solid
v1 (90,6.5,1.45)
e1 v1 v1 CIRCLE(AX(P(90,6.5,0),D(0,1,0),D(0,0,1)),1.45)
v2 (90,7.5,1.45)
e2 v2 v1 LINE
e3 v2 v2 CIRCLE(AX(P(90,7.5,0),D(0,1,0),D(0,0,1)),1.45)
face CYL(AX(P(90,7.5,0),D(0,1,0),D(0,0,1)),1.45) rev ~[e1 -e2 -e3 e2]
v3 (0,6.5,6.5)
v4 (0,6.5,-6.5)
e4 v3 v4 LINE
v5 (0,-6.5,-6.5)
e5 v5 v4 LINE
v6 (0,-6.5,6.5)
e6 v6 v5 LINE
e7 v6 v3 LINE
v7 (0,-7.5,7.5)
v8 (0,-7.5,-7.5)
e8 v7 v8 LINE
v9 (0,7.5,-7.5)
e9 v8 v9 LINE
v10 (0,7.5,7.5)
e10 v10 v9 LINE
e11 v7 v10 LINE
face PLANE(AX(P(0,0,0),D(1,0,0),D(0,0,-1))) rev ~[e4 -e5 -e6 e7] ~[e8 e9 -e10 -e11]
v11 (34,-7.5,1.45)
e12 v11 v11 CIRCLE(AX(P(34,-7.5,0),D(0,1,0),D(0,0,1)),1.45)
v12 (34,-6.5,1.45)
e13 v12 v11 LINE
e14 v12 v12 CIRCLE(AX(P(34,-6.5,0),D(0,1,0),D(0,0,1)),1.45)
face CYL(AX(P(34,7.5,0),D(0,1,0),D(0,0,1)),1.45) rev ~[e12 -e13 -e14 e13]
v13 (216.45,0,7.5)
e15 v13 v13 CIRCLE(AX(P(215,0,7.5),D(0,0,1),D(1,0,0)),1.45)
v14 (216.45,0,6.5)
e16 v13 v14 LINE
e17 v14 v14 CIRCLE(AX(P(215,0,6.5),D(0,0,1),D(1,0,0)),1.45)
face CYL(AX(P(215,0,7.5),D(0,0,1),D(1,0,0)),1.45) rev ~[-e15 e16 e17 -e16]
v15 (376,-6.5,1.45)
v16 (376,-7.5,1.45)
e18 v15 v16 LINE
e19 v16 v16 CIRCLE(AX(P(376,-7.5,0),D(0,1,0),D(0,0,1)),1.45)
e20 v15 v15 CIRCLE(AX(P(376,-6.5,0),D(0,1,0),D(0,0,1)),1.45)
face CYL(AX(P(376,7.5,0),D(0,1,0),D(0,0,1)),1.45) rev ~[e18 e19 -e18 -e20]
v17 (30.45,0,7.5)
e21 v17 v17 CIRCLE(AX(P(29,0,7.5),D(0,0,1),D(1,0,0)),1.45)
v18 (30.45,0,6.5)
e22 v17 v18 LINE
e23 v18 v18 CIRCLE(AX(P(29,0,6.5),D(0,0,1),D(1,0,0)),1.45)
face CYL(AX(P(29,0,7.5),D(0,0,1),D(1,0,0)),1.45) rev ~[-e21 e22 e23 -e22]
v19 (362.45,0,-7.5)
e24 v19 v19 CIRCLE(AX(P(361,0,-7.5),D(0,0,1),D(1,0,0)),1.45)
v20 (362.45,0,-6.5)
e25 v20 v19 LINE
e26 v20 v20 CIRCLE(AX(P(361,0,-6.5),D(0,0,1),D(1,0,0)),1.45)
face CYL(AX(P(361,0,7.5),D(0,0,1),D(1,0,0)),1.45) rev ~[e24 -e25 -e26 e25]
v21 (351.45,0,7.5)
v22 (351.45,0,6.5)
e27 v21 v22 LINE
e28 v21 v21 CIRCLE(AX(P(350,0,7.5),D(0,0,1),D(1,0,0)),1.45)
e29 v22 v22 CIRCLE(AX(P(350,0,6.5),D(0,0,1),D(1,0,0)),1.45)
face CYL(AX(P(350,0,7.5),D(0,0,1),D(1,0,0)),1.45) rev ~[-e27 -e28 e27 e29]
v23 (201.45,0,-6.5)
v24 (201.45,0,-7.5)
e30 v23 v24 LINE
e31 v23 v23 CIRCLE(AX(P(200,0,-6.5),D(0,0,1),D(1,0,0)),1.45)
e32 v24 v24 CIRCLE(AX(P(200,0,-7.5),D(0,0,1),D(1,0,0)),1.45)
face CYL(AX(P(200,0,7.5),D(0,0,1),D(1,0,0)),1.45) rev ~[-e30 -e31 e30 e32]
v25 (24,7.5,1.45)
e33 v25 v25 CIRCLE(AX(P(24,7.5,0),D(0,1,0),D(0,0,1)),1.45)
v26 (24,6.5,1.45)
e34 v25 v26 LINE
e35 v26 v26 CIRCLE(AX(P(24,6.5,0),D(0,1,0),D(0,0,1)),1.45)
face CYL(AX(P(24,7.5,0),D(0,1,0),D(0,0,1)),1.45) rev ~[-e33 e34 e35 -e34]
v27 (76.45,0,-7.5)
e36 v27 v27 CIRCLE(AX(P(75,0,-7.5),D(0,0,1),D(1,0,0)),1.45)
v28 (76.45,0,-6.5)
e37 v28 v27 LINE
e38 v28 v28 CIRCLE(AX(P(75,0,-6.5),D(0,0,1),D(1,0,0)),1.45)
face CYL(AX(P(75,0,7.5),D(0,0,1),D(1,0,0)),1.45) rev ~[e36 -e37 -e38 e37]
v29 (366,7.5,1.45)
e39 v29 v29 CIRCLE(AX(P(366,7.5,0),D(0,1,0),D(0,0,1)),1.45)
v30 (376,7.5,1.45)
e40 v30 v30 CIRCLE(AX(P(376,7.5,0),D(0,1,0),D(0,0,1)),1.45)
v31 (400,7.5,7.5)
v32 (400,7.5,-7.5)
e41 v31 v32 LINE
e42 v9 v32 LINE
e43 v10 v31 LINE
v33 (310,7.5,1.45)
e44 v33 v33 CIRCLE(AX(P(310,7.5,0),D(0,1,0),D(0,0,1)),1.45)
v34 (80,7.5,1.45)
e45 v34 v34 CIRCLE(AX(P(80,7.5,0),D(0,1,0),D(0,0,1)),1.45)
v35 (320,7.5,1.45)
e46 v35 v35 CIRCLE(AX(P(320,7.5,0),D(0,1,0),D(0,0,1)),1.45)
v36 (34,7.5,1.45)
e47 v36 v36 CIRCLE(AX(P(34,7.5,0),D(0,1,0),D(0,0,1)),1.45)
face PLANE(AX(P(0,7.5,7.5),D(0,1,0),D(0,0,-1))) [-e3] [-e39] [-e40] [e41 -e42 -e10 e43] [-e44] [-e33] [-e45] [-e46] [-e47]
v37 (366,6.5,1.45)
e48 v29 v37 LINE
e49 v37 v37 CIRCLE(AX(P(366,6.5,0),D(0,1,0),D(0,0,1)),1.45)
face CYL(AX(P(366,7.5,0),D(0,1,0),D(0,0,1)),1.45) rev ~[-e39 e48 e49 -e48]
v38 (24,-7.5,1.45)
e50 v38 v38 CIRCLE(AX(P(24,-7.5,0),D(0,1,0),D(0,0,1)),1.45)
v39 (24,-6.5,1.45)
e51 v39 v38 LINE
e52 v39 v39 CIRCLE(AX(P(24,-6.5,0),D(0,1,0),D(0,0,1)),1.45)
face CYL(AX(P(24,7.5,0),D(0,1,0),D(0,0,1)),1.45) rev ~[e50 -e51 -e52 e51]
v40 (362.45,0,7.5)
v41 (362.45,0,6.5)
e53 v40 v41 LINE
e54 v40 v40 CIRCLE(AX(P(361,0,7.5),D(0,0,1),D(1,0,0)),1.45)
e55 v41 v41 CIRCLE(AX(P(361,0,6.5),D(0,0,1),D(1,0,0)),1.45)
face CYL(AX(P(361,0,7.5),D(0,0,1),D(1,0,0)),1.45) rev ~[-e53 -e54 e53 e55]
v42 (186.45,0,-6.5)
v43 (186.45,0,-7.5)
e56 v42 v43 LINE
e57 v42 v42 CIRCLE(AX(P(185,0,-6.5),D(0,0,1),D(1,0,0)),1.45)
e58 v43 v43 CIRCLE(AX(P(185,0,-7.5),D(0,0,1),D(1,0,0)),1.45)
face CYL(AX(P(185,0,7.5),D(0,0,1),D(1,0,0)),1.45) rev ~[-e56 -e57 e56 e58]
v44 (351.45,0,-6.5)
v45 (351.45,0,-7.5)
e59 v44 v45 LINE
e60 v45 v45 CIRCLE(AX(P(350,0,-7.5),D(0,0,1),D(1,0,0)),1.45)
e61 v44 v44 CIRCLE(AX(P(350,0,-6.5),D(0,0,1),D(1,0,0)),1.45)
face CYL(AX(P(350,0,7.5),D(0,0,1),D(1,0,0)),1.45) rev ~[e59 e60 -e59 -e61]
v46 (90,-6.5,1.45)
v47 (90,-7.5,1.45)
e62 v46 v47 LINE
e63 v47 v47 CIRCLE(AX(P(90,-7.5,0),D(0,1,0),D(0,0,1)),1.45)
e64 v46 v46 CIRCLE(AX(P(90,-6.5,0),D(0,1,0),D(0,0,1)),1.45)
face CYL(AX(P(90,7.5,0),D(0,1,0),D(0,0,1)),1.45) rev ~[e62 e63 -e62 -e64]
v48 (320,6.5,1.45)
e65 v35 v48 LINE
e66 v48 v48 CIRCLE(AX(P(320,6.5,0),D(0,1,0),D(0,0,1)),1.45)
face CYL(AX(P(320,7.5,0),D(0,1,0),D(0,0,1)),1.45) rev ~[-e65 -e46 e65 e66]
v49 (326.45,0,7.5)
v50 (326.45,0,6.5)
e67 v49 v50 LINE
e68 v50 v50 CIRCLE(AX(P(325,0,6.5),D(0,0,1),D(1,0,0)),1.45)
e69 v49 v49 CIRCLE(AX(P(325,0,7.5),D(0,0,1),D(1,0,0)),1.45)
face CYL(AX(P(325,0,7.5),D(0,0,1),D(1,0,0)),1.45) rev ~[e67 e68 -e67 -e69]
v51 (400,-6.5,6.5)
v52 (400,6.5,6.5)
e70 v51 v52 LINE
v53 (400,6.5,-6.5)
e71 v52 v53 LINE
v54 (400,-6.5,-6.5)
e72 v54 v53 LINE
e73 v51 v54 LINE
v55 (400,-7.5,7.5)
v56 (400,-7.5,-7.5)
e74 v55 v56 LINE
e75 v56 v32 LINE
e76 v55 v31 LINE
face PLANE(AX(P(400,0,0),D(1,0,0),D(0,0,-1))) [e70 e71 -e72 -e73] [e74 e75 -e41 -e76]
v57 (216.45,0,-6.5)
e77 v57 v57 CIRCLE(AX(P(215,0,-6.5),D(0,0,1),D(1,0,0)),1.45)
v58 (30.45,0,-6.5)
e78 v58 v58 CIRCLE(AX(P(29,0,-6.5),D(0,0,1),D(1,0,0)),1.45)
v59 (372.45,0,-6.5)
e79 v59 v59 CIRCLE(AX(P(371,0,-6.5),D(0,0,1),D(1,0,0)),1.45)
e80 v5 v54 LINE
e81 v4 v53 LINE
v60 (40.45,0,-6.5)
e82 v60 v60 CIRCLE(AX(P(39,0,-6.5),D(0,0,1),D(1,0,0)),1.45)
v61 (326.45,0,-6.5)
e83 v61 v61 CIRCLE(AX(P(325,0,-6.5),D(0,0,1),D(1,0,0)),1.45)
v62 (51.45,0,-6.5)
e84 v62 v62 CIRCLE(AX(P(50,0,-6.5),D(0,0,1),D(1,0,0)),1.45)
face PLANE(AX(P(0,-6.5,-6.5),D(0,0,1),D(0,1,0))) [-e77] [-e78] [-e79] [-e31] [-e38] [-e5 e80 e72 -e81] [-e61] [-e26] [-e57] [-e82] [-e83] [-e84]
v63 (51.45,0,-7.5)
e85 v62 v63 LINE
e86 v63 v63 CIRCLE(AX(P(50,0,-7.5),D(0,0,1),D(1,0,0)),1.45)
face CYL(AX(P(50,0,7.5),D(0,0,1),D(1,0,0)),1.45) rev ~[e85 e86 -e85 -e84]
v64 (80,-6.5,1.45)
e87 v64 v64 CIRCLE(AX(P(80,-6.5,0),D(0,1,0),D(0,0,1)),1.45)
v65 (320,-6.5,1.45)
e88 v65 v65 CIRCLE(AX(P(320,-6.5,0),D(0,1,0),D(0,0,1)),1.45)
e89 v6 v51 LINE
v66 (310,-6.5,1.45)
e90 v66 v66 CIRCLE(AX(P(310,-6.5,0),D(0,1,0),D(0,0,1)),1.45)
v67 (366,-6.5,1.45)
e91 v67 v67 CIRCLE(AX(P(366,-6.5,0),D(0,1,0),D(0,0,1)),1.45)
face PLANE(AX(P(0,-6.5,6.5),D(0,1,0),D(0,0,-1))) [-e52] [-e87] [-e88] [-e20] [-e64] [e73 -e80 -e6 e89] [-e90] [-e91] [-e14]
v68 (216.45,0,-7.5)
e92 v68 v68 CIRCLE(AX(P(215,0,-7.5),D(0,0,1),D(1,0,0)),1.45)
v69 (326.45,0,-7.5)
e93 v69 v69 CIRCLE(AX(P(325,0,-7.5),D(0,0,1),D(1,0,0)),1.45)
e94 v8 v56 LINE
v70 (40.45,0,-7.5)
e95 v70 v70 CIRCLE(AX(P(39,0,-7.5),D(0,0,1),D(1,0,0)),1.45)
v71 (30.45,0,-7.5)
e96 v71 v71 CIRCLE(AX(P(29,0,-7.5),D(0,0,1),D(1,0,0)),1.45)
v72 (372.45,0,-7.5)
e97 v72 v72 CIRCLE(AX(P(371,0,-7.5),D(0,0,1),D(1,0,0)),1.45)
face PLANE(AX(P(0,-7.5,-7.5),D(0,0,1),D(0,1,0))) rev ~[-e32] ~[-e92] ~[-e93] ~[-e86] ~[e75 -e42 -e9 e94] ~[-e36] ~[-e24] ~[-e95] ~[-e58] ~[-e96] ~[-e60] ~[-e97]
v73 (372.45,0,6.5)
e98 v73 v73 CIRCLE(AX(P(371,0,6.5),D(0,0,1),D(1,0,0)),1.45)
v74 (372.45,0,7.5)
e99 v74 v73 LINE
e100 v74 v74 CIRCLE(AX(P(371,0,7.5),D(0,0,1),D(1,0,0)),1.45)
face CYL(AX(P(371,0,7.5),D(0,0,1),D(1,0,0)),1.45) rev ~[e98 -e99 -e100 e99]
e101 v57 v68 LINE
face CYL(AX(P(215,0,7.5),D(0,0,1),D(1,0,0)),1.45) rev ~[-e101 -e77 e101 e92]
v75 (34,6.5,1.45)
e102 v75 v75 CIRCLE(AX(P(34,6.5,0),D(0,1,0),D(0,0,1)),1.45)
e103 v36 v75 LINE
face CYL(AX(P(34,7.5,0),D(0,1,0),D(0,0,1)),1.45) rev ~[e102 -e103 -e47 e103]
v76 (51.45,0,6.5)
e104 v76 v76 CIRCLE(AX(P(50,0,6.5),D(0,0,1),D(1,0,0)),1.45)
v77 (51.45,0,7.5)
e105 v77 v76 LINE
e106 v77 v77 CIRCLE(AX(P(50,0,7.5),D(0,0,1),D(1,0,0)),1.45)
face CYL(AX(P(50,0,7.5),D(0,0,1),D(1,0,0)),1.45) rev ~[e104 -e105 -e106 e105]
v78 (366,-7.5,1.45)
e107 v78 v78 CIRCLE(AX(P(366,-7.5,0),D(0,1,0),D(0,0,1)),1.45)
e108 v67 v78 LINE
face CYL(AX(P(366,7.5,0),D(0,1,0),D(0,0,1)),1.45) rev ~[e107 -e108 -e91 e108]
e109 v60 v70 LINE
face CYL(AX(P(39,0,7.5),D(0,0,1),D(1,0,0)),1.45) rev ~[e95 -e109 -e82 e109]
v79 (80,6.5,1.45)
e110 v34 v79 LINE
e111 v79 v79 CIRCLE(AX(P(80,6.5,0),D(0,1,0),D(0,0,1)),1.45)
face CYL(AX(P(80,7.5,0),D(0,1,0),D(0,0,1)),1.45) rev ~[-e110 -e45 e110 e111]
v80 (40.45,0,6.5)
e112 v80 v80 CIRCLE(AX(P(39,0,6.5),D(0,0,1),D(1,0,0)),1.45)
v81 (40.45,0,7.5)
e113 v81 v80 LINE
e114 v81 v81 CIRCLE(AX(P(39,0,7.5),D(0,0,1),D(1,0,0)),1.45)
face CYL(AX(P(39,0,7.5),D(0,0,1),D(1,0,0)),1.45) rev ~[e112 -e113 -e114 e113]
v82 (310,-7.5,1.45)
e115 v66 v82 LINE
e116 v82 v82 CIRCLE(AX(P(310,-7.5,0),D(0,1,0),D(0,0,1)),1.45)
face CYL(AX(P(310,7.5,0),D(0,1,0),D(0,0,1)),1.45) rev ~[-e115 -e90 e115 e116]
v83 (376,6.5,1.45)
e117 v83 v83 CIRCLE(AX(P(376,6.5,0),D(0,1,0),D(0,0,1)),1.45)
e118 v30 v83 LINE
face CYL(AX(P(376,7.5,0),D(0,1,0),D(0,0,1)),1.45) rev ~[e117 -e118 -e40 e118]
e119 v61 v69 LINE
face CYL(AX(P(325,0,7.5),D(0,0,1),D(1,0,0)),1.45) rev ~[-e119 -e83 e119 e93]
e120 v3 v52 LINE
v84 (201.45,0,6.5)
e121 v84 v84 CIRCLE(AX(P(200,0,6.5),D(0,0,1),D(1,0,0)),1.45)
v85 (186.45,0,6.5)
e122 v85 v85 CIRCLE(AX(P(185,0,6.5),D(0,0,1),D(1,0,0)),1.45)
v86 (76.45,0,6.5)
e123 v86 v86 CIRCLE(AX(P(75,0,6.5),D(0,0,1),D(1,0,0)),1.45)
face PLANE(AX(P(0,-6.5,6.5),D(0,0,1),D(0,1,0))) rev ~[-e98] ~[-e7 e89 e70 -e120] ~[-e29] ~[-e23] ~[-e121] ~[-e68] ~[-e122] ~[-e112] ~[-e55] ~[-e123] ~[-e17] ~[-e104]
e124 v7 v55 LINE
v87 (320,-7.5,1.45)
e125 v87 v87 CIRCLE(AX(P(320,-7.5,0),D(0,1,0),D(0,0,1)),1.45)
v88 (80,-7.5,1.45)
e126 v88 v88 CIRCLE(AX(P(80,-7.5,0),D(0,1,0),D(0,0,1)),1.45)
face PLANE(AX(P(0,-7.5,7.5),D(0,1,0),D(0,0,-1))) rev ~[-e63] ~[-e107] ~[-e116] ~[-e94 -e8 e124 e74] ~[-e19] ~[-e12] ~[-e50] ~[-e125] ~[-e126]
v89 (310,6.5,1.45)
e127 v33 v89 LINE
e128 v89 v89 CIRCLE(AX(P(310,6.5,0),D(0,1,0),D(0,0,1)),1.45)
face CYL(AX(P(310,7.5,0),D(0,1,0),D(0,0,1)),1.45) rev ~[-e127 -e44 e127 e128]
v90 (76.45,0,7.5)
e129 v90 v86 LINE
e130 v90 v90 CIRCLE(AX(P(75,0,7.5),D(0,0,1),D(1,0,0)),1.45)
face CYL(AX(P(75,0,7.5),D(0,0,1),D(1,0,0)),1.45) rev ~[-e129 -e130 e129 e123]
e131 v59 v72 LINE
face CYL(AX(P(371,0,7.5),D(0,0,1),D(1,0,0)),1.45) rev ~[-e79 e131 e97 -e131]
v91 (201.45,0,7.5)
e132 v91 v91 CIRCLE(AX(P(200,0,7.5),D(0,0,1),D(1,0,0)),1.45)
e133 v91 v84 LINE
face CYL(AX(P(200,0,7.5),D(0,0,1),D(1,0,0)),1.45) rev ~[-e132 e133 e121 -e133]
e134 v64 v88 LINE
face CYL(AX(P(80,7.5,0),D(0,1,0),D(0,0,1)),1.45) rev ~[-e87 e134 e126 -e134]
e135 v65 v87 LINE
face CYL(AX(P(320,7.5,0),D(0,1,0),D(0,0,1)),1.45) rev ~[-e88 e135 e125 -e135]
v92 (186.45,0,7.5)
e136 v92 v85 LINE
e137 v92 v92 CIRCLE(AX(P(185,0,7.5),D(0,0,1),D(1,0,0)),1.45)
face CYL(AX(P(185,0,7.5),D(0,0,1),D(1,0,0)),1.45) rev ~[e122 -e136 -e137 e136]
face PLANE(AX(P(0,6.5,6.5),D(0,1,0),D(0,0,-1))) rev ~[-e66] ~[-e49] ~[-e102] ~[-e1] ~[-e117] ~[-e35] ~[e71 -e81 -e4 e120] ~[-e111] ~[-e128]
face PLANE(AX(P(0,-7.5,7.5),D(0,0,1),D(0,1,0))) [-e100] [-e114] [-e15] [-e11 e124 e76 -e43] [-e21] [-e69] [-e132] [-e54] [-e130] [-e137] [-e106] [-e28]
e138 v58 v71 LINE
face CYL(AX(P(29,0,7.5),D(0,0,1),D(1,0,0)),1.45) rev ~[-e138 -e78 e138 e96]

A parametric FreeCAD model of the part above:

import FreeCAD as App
import Part
import Sketcher

V = App.Vector
Q = App.Units.Quantity

doc = App.newDocument("Part")
params = doc.addObject("Spreadsheet::Sheet", "Params")
for row, (alias, value) in enumerate([
    ("sketch1_width", "15 mm"),
    ("sketch1_width2", "13 mm"),
    ("pad1_length", "400 mm"),
    ("sketch2_diameter", "2.9 mm"),
    ("sketch3_diameter", "2.9 mm"),
], start=1):
    params.set(f"A{row}", alias)
    params.set(f"B{row}", "=" + value)
    params.setAlias(f"B{row}", alias)

body = doc.addObject("PartDesign::Body", "Body")

sketch1 = doc.addObject("Sketcher::SketchObject", "Sketch")
body.addObject(sketch1)
sketch1.AttachmentSupport = (doc.YZ_Plane, [""])
sketch1.MapMode = "FlatFace"
sketch1.addGeometry(Part.LineSegment(V(8, 8, 0), V(-8, 8, 0)), False)
sketch1.addGeometry(Part.LineSegment(V(-8, 8, 0), V(-8, -8, 0)), False)
sketch1.addGeometry(Part.LineSegment(V(-8, -8, 0), V(8, -8, 0)), False)
sketch1.addGeometry(Part.LineSegment(V(8, -8, 0), V(8, 8, 0)), False)
sketch1.addGeometry(Part.LineSegment(V(-6, -6, 0), V(-6, 6, 0)), False)
sketch1.addGeometry(Part.LineSegment(V(-6, 6, 0), V(6, 6, 0)), False)
sketch1.addGeometry(Part.LineSegment(V(6, 6, 0), V(6, -6, 0)), False)
sketch1.addGeometry(Part.LineSegment(V(6, -6, 0), V(-6, -6, 0)), False)
sketch1.addConstraint(Sketcher.Constraint("Coincident", 0, 2, 1, 1))
sketch1.addConstraint(Sketcher.Constraint("Coincident", 1, 2, 2, 1))
sketch1.addConstraint(Sketcher.Constraint("Coincident", 2, 2, 3, 1))
sketch1.addConstraint(Sketcher.Constraint("Coincident", 3, 2, 0, 1))
sketch1.addConstraint(Sketcher.Constraint("Coincident", 4, 2, 5, 1))
sketch1.addConstraint(Sketcher.Constraint("Coincident", 5, 2, 6, 1))
sketch1.addConstraint(Sketcher.Constraint("Coincident", 6, 2, 7, 1))
sketch1.addConstraint(Sketcher.Constraint("Coincident", 7, 2, 4, 1))
sketch1.addConstraint(Sketcher.Constraint("Horizontal", 0))
sketch1.addConstraint(Sketcher.Constraint("Vertical", 1))
sketch1.addConstraint(Sketcher.Constraint("Horizontal", 2))
sketch1.addConstraint(Sketcher.Constraint("Vertical", 3))
sketch1.addConstraint(Sketcher.Constraint("Vertical", 4))
sketch1.addConstraint(Sketcher.Constraint("Horizontal", 5))
sketch1.addConstraint(Sketcher.Constraint("Vertical", 6))
sketch1.addConstraint(Sketcher.Constraint("Horizontal", 7))
sketch1.addConstraint(Sketcher.Constraint("Symmetric", 0, 2, 2, 2, -1, 1))
sketch1.addConstraint(Sketcher.Constraint("Symmetric", 4, 2, 6, 2, -1, 1))
sketch1.addConstraint(Sketcher.Constraint("Equal", 2, 1))
sketch1.addConstraint(Sketcher.Constraint("Equal", 7, 4))
sketch1.addConstraint(Sketcher.Constraint("DistanceX", 0, 2, 0, 1, Q("15 mm")))
sketch1.addConstraint(Sketcher.Constraint("DistanceX", 5, 1, 5, 2, Q("13 mm")))
sketch1.setExpression("Constraints[20]", "Params.sketch1_width")
sketch1.setExpression("Constraints[21]", "Params.sketch1_width2")
pad1 = doc.addObject("PartDesign::Pad", "Pad")
body.addObject(pad1)
pad1.Profile = sketch1
pad1.setExpression("Length", "Params.pad1_length")

sketch2 = doc.addObject("Sketcher::SketchObject", "Sketch001")
body.addObject(sketch2)
sketch2.AttachmentSupport = (doc.XY_Plane, [""])
sketch2.MapMode = "FlatFace"
sketch2.AttachmentOffset = App.Placement(V(0, 0, 7.5), App.Rotation())
sketch2.addGeometry(Part.Circle(V(371, 0, 0), V(0, 0, 1), 1.4), False)
sketch2.addGeometry(Part.Circle(V(361, 0, 0), V(0, 0, 1), 1.4), False)
sketch2.addGeometry(Part.Circle(V(350, 0, 0), V(0, 0, 1), 1.4), False)
sketch2.addGeometry(Part.Circle(V(325, 0, 0), V(0, 0, 1), 1.4), False)
sketch2.addGeometry(Part.Circle(V(215, 0, 0), V(0, 0, 1), 1.4), False)
sketch2.addGeometry(Part.Circle(V(200, 0, 0), V(0, 0, 1), 1.4), False)
sketch2.addGeometry(Part.Circle(V(185, 0, 0), V(0, 0, 1), 1.4), False)
sketch2.addGeometry(Part.Circle(V(75, 0, 0), V(0, 0, 1), 1.4), False)
sketch2.addGeometry(Part.Circle(V(50, 0, 0), V(0, 0, 1), 1.4), False)
sketch2.addGeometry(Part.Circle(V(39, 0, 0), V(0, 0, 1), 1.4), False)
sketch2.addGeometry(Part.Circle(V(29, 0, 0), V(0, 0, 1), 1.4), False)
sketch2.addConstraint(Sketcher.Constraint("Equal", 0, 1))
sketch2.addConstraint(Sketcher.Constraint("Equal", 1, 2))
sketch2.addConstraint(Sketcher.Constraint("Equal", 2, 3))
sketch2.addConstraint(Sketcher.Constraint("Equal", 3, 4))
sketch2.addConstraint(Sketcher.Constraint("Equal", 4, 5))
sketch2.addConstraint(Sketcher.Constraint("Equal", 5, 6))
sketch2.addConstraint(Sketcher.Constraint("Equal", 6, 7))
sketch2.addConstraint(Sketcher.Constraint("Equal", 7, 8))
sketch2.addConstraint(Sketcher.Constraint("Equal", 8, 9))
sketch2.addConstraint(Sketcher.Constraint("Equal", 9, 10))
sketch2.addConstraint(Sketcher.Constraint("PointOnObject", 0, 3, -1))
sketch2.addConstraint(Sketcher.Constraint("PointOnObject", 1, 3, -1))
sketch2.addConstraint(Sketcher.Constraint("PointOnObject", 2, 3, -1))
sketch2.addConstraint(Sketcher.Constraint("PointOnObject", 3, 3, -1))
sketch2.addConstraint(Sketcher.Constraint("PointOnObject", 4, 3, -1))
sketch2.addConstraint(Sketcher.Constraint("PointOnObject", 5, 3, -1))
sketch2.addConstraint(Sketcher.Constraint("PointOnObject", 6, 3, -1))
sketch2.addConstraint(Sketcher.Constraint("PointOnObject", 7, 3, -1))
sketch2.addConstraint(Sketcher.Constraint("PointOnObject", 8, 3, -1))
sketch2.addConstraint(Sketcher.Constraint("PointOnObject", 9, 3, -1))
sketch2.addConstraint(Sketcher.Constraint("PointOnObject", 10, 3, -1))
sketch2.addConstraint(Sketcher.Constraint("Diameter", 0, Q("2.9 mm")))
sketch2.addConstraint(Sketcher.Constraint("DistanceX", -1, 1, 0, 3, Q("371 mm")))
sketch2.addConstraint(Sketcher.Constraint("DistanceX", -1, 1, 1, 3, Q("361 mm")))
sketch2.addConstraint(Sketcher.Constraint("DistanceX", -1, 1, 2, 3, Q("350 mm")))
sketch2.addConstraint(Sketcher.Constraint("DistanceX", -1, 1, 3, 3, Q("325 mm")))
sketch2.addConstraint(Sketcher.Constraint("DistanceX", -1, 1, 4, 3, Q("215 mm")))
sketch2.addConstraint(Sketcher.Constraint("DistanceX", -1, 1, 5, 3, Q("200 mm")))
sketch2.addConstraint(Sketcher.Constraint("DistanceX", -1, 1, 6, 3, Q("185 mm")))
sketch2.addConstraint(Sketcher.Constraint("DistanceX", -1, 1, 7, 3, Q("75 mm")))
sketch2.addConstraint(Sketcher.Constraint("DistanceX", -1, 1, 8, 3, Q("50 mm")))
sketch2.addConstraint(Sketcher.Constraint("DistanceX", -1, 1, 9, 3, Q("39 mm")))
sketch2.addConstraint(Sketcher.Constraint("DistanceX", -1, 1, 10, 3, Q("29 mm")))
sketch2.setExpression("Constraints[21]", "Params.sketch2_diameter")
pocket1 = doc.addObject("PartDesign::Pocket", "Pocket")
body.addObject(pocket1)
pocket1.Profile = sketch2
pocket1.Type = "ThroughAll"

sketch3 = doc.addObject("Sketcher::SketchObject", "Sketch002")
body.addObject(sketch3)
sketch3.AttachmentSupport = (doc.XZ_Plane, [""])
sketch3.MapMode = "FlatFace"
sketch3.AttachmentOffset = App.Placement(V(0, 0, -7.5), App.Rotation())
sketch3.addGeometry(Part.Circle(V(376, 0, 0), V(0, 0, 1), 1.4), False)
sketch3.addGeometry(Part.Circle(V(366, 0, 0), V(0, 0, 1), 1.4), False)
sketch3.addGeometry(Part.Circle(V(320, 0, 0), V(0, 0, 1), 1.4), False)
sketch3.addGeometry(Part.Circle(V(310, 0, 0), V(0, 0, 1), 1.4), False)
sketch3.addGeometry(Part.Circle(V(90, 0, 0), V(0, 0, 1), 1.4), False)
sketch3.addGeometry(Part.Circle(V(80, 0, 0), V(0, 0, 1), 1.4), False)
sketch3.addGeometry(Part.Circle(V(34, 0, 0), V(0, 0, 1), 1.4), False)
sketch3.addGeometry(Part.Circle(V(24, 0, 0), V(0, 0, 1), 1.4), False)
sketch3.addConstraint(Sketcher.Constraint("Equal", 0, 1))
sketch3.addConstraint(Sketcher.Constraint("Equal", 1, 2))
sketch3.addConstraint(Sketcher.Constraint("Equal", 2, 3))
sketch3.addConstraint(Sketcher.Constraint("Equal", 3, 4))
sketch3.addConstraint(Sketcher.Constraint("Equal", 4, 5))
sketch3.addConstraint(Sketcher.Constraint("Equal", 5, 6))
sketch3.addConstraint(Sketcher.Constraint("Equal", 6, 7))
sketch3.addConstraint(Sketcher.Constraint("PointOnObject", 0, 3, -1))
sketch3.addConstraint(Sketcher.Constraint("PointOnObject", 1, 3, -1))
sketch3.addConstraint(Sketcher.Constraint("PointOnObject", 2, 3, -1))
sketch3.addConstraint(Sketcher.Constraint("PointOnObject", 3, 3, -1))
sketch3.addConstraint(Sketcher.Constraint("PointOnObject", 4, 3, -1))
sketch3.addConstraint(Sketcher.Constraint("PointOnObject", 5, 3, -1))
sketch3.addConstraint(Sketcher.Constraint("PointOnObject", 6, 3, -1))
sketch3.addConstraint(Sketcher.Constraint("PointOnObject", 7, 3, -1))
sketch3.addConstraint(Sketcher.Constraint("Diameter", 0, Q("2.9 mm")))
sketch3.addConstraint(Sketcher.Constraint("DistanceX", -1, 1, 0, 3, Q("376 mm")))
sketch3.addConstraint(Sketcher.Constraint("DistanceX", -1, 1, 1, 3, Q("366 mm")))
sketch3.addConstraint(Sketcher.Constraint("DistanceX", -1, 1, 2, 3, Q("320 mm")))
sketch3.addConstraint(Sketcher.Constraint("DistanceX", -1, 1, 3, 3, Q("310 mm")))
sketch3.addConstraint(Sketcher.Constraint("DistanceX", -1, 1, 4, 3, Q("90 mm")))
sketch3.addConstraint(Sketcher.Constraint("DistanceX", -1, 1, 5, 3, Q("80 mm")))
sketch3.addConstraint(Sketcher.Constraint("DistanceX", -1, 1, 6, 3, Q("34 mm")))
sketch3.addConstraint(Sketcher.Constraint("DistanceX", -1, 1, 7, 3, Q("24 mm")))
sketch3.setExpression("Constraints[15]", "Params.sketch3_diameter")
pocket2 = doc.addObject("PartDesign::Pocket", "Pocket001")
body.addObject(pocket2)
pocket2.Profile = sketch3
pocket2.Type = "ThroughAll"
pocket2.Reversed = True

doc.recompute()
